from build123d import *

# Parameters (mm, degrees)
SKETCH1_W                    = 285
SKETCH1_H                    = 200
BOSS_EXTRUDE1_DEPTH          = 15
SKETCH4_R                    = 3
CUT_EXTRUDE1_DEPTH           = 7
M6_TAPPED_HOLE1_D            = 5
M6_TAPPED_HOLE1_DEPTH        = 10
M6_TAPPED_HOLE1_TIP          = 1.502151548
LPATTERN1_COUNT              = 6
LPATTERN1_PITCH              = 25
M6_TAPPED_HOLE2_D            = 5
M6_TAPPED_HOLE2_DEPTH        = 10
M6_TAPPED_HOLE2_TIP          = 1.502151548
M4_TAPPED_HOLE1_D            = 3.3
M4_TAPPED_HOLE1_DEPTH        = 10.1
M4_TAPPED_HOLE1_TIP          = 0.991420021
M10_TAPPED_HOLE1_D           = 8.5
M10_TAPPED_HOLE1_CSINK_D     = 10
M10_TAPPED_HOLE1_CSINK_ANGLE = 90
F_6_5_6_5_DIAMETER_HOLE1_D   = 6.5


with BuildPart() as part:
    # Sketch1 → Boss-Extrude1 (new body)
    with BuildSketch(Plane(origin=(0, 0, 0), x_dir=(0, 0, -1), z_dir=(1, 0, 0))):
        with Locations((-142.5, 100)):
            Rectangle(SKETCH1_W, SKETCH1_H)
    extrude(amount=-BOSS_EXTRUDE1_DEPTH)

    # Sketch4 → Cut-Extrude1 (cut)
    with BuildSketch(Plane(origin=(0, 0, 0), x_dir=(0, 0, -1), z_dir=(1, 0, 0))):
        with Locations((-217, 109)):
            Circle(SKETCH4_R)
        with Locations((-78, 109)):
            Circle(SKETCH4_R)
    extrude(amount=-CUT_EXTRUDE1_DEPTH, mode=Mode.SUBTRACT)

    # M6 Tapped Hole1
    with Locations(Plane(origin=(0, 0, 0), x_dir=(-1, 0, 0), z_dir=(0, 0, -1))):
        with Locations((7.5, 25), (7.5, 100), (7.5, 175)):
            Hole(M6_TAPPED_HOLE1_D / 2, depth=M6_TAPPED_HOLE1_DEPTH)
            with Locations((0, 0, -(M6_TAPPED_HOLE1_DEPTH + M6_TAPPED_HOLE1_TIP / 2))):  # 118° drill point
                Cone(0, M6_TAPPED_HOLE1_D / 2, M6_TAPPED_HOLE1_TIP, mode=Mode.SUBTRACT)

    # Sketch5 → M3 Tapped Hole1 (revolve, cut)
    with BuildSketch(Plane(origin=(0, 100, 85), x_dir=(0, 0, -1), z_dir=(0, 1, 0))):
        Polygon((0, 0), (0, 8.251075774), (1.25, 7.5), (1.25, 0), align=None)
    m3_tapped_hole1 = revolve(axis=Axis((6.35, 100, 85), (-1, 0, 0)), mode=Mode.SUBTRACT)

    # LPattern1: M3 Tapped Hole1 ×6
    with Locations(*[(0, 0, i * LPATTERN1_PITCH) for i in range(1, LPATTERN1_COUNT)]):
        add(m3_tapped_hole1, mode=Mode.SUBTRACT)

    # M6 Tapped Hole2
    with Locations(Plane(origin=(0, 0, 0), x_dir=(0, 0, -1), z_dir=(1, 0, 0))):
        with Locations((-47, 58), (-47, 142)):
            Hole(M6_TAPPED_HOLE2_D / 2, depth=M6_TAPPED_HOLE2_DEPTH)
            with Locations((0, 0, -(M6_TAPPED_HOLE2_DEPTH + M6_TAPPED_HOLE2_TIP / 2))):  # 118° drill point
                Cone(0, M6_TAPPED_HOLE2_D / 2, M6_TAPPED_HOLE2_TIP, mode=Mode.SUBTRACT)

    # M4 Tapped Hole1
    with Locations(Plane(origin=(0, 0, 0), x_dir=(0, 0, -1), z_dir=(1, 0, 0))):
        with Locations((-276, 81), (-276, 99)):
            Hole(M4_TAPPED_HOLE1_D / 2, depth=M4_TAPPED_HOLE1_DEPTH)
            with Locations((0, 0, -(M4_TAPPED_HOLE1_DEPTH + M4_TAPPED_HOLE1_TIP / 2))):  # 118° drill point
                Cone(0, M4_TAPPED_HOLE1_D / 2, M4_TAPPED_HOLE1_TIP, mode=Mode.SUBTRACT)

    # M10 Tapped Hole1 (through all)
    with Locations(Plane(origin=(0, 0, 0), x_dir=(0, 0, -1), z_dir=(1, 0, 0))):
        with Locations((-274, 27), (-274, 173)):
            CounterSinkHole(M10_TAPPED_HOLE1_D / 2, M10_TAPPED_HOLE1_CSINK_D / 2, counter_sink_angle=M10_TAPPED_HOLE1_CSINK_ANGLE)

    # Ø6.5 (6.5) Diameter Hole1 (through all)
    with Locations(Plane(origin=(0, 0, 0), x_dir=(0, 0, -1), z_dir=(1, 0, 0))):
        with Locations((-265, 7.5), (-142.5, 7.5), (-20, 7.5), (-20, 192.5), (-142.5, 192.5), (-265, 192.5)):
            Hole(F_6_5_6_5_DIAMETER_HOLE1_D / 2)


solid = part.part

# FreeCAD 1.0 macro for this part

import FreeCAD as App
import Part
import Sketcher
Q = App.Units.Quantity

doc = App.newDocument("Part")
params = doc.addObject("Spreadsheet::Sheet", "Params")
for row, (alias, value) in enumerate([
    ("sketch1_width", "200 mm"),
    ("sketch1_height", "285 mm"),
    ("pad1_length", "15 mm"),
    ("sketch2_diameter", "6 mm"),
    ("pocket1_length", "7 mm"),
    ("sketch3_diameter", "5 mm"),
    ("hole_diameter", "5 mm"),
    ("hole_depth", "10 mm"),
    ("sketch4_width", "7.5 mm"),
    ("sketch4_height", "1.25 mm"),
    ("groove_angle", "360 deg"),
    ("linearpattern_pitch", "25 mm"),
    ("sketch5_diameter", "5 mm"),
    ("hole2_diameter", "5 mm"),
    ("hole2_depth", "10 mm"),
    ("sketch6_diameter", "3.3 mm"),
    ("hole3_diameter", "3.3 mm"),
    ("hole3_depth", "10.1 mm"),
    ("sketch7_diameter", "8.5 mm"),
    ("hole4_diameter", "8.5 mm"),
    ("hole4_csink_diameter", "10 mm"),
    ("sketch8_diameter", "6.5 mm"),
    ("hole5_diameter", "6.5 mm"),
], start=1):
    params.set(f"A{row}", alias)
    params.set(f"B{row}", "=" + value)
    params.setAlias(f"B{row}", alias)

body = doc.addObject("PartDesign::Body", "Body")

# Sketch on YZ plane
sketch1 = doc.addObject("Sketcher::SketchObject", "Sketch")
body.addObject(sketch1)
sketch1.AttachmentSupport = (doc.YZ_Plane, [""])
sketch1.MapMode = "FlatFace"
sketch1.addGeometry(Part.LineSegment(App.Vector(200, 285, 0), App.Vector(0, 285, 0)), False)
sketch1.addGeometry(Part.LineSegment(App.Vector(0, 285, 0), App.Vector(0, 0, 0)), False)
sketch1.addGeometry(Part.LineSegment(App.Vector(0, 0, 0), App.Vector(200, 0, 0)), False)
sketch1.addGeometry(Part.LineSegment(App.Vector(200, 0, 0), App.Vector(200, 285, 0)), False)
sketch1.addConstraint(Sketcher.Constraint("Coincident", 0, 2, 1, 1))
sketch1.addConstraint(Sketcher.Constraint("Coincident", 1, 2, 2, 1))
sketch1.addConstraint(Sketcher.Constraint("Coincident", 2, 2, 3, 1))
sketch1.addConstraint(Sketcher.Constraint("Coincident", 3, 2, 0, 1))
sketch1.addConstraint(Sketcher.Constraint("Horizontal", 0))
sketch1.addConstraint(Sketcher.Constraint("Vertical", 1))
sketch1.addConstraint(Sketcher.Constraint("Horizontal", 2))
sketch1.addConstraint(Sketcher.Constraint("Vertical", 3))
sketch1.addConstraint(Sketcher.Constraint("Coincident", 1, 2, -1, 1))
sketch1.addConstraint(Sketcher.Constraint("DistanceX", 0, 2, 0, 1, 200.0))
sketch1.addConstraint(Sketcher.Constraint("DistanceY", 1, 2, 1, 1, 285.0))
sketch1.setExpression("Constraints[9]", "Params.sketch1_width")
sketch1.setExpression("Constraints[10]", "Params.sketch1_height")
pad1 = doc.addObject("PartDesign::Pad", "Pad")
body.addObject(pad1)
pad1.Profile = sketch1
pad1.setExpression("Length", "Params.pad1_length")
pad1.Reversed = True

# Sketch on YZ plane
sketch2 = doc.addObject("Sketcher::SketchObject", "Sketch001")
body.addObject(sketch2)
sketch2.AttachmentSupport = (doc.YZ_Plane, [""])
sketch2.MapMode = "FlatFace"
sketch2.addGeometry(Part.Circle(App.Vector(109, 217, 0), App.Vector(0, 0, 1), 3), False)
sketch2.addGeometry(Part.Circle(App.Vector(109, 78, 0), App.Vector(0, 0, 1), 3), False)
sketch2.addConstraint(Sketcher.Constraint("Equal", 0, 1))
sketch2.addConstraint(Sketcher.Constraint("Vertical", 0, 3, 1, 3))
sketch2.addConstraint(Sketcher.Constraint("Diameter", 0, 6.0))
sketch2.addConstraint(Sketcher.Constraint("DistanceX", -1, 1, 0, 3, 109.0))
sketch2.addConstraint(Sketcher.Constraint("DistanceY", -1, 1, 0, 3, 217.0))
sketch2.addConstraint(Sketcher.Constraint("DistanceY", -1, 1, 1, 3, 78.0))
sketch2.setExpression("Constraints[2]", "Params.sketch2_diameter")
pocket1 = doc.addObject("PartDesign::Pocket", "Pocket")
body.addObject(pocket1)
pocket1.Profile = sketch2
pocket1.setExpression("Length", "Params.pocket1_length")

# Sketch on XY plane
sketch3 = doc.addObject("Sketcher::SketchObject", "Sketch002")
body.addObject(sketch3)
sketch3.AttachmentSupport = (doc.XY_Plane, [""])
sketch3.MapMode = "FlatFace"
sketch3.addGeometry(Part.Circle(App.Vector(-7.5, 25, 0), App.Vector(0, 0, 1), 2.5), False)
sketch3.addGeometry(Part.Circle(App.Vector(-7.5, 100, 0), App.Vector(0, 0, 1), 2.5), False)
sketch3.addGeometry(Part.Circle(App.Vector(-7.5, 175, 0), App.Vector(0, 0, 1), 2.5), False)
sketch3.addConstraint(Sketcher.Constraint("Equal", 0, 1))
sketch3.addConstraint(Sketcher.Constraint("Equal", 1, 2))
sketch3.addConstraint(Sketcher.Constraint("Vertical", 0, 3, 1, 3))
sketch3.addConstraint(Sketcher.Constraint("Vertical", 1, 3, 2, 3))
sketch3.addConstraint(Sketcher.Constraint("Diameter", 0, 5.0))
sketch3.addConstraint(Sketcher.Constraint("DistanceY", -1, 1, 0, 3, 25.0))
sketch3.addConstraint(Sketcher.Constraint("DistanceY", -1, 1, 1, 3, 100.0))
sketch3.addConstraint(Sketcher.Constraint("DistanceY", -1, 1, 2, 3, 175.0))
sketch3.addConstraint(Sketcher.Constraint("DistanceX", 0, 3, -1, 1, 7.5))
sketch3.setExpression("Constraints[4]", "Params.sketch3_diameter")
doc.recompute()
hole = doc.addObject("PartDesign::Hole", "Hole")
body.addObject(hole)
hole.Profile = sketch3
hole.ThreadType = "None"
hole.setExpression("Diameter", "Params.hole_diameter")
hole.DepthType = "Dimension"
hole.setExpression("Depth", "Params.hole_depth")
hole.DrillPoint = "Angled"
hole.DrillPointAngle = 118
hole.Reversed = True

# Sketch on XZ plane
sketch4 = doc.addObject("Sketcher::SketchObject", "Sketch003")
body.addObject(sketch4)
sketch4.AttachmentSupport = (doc.XZ_Plane, [""])
sketch4.MapMode = "FlatFace"
sketch4.AttachmentOffset = App.Placement(App.Vector(0, 0, -100), App.Rotation())
sketch4.addGeometry(Part.LineSegment(App.Vector(-8.3, 85, 0), App.Vector(0, 85, 0)), False)
sketch4.addGeometry(Part.LineSegment(App.Vector(0, 85, 0), App.Vector(0, 83.8, 0)), False)
sketch4.addGeometry(Part.LineSegment(App.Vector(0, 83.8, 0), App.Vector(-7.5, 83.8, 0)), False)
sketch4.addGeometry(Part.LineSegment(App.Vector(-7.5, 83.8, 0), App.Vector(-8.3, 85, 0)), False)
sketch4.addGeometry(Part.LineSegment(App.Vector(0, 85, 0), App.Vector(-8.3, 85, 0)), True)  # axis
sketch4.addConstraint(Sketcher.Constraint("Coincident", 0, 2, 1, 1))
sketch4.addConstraint(Sketcher.Constraint("Coincident", 1, 2, 2, 1))
sketch4.addConstraint(Sketcher.Constraint("Coincident", 2, 2, 3, 1))
sketch4.addConstraint(Sketcher.Constraint("Coincident", 3, 2, 0, 1))
sketch4.addConstraint(Sketcher.Constraint("Horizontal", 0))
sketch4.addConstraint(Sketcher.Constraint("Vertical", 1))
sketch4.addConstraint(Sketcher.Constraint("Horizontal", 2))
sketch4.addConstraint(Sketcher.Constraint("Horizontal", 4))
sketch4.addConstraint(Sketcher.Constraint("Coincident", 4, 1, 0, 2))
sketch4.addConstraint(Sketcher.Constraint("PointOnObject", 0, 2, -2))
sketch4.addConstraint(Sketcher.Constraint("Equal", 0, 4))
sketch4.addConstraint(Sketcher.Constraint("Angle", 3, Q("121 deg")))
sketch4.addConstraint(Sketcher.Constraint("DistanceX", 2, 2, 2, 1, 7.5))
sketch4.addConstraint(Sketcher.Constraint("DistanceY", -1, 1, 0, 2, 85.0))
sketch4.addConstraint(Sketcher.Constraint("DistanceY", 1, 2, 1, 1, 1.25))
sketch4.setExpression("Constraints[12]", "Params.sketch4_width")
sketch4.setExpression("Constraints[14]", "Params.sketch4_height")
groove = doc.addObject("PartDesign::Groove", "Groove")
body.addObject(groove)
groove.Profile = sketch4
groove.ReferenceAxis = (sketch4, ["Axis0"])
groove.setExpression("Angle", "Params.groove_angle")
doc.recompute()

linearpattern = doc.addObject("PartDesign::LinearPattern", "LinearPattern")
body.addObject(linearpattern)
linearpattern.Originals = [groove]
linearpattern.Direction = (doc.Z_Axis, [""])
linearpattern.Mode = "offset"
linearpattern.setExpression("Offset", "Params.linearpattern_pitch")
linearpattern.Occurrences = 6
body.Tip = linearpattern

# Sketch on YZ plane
sketch5 = doc.addObject("Sketcher::SketchObject", "Sketch004")
body.addObject(sketch5)
sketch5.AttachmentSupport = (doc.YZ_Plane, [""])
sketch5.MapMode = "FlatFace"
sketch5.addGeometry(Part.Circle(App.Vector(58, 47, 0), App.Vector(0, 0, 1), 2.5), False)
sketch5.addGeometry(Part.Circle(App.Vector(142, 47, 0), App.Vector(0, 0, 1), 2.5), False)
sketch5.addConstraint(Sketcher.Constraint("Equal", 0, 1))
sketch5.addConstraint(Sketcher.Constraint("Horizontal", 0, 3, 1, 3))
sketch5.addConstraint(Sketcher.Constraint("Diameter", 0, 5.0))
sketch5.addConstraint(Sketcher.Constraint("DistanceX", -1, 1, 0, 3, 58.0))
sketch5.addConstraint(Sketcher.Constraint("DistanceY", -1, 1, 0, 3, 47.0))
sketch5.addConstraint(Sketcher.Constraint("DistanceX", -1, 1, 1, 3, 142.0))
sketch5.setExpression("Constraints[2]", "Params.sketch5_diameter")
doc.recompute()
hole2 = doc.addObject("PartDesign::Hole", "Hole001")
body.addObject(hole2)
hole2.Profile = sketch5
hole2.ThreadType = "None"
hole2.setExpression("Diameter", "Params.hole2_diameter")
hole2.DepthType = "Dimension"
hole2.setExpression("Depth", "Params.hole2_depth")
hole2.DrillPoint = "Angled"
hole2.DrillPointAngle = 118

# Sketch on YZ plane
sketch6 = doc.addObject("Sketcher::SketchObject", "Sketch005")
body.addObject(sketch6)
sketch6.AttachmentSupport = (doc.YZ_Plane, [""])
sketch6.MapMode = "FlatFace"
sketch6.addGeometry(Part.Circle(App.Vector(81, 276, 0), App.Vector(0, 0, 1), 1.6), False)
sketch6.addGeometry(Part.Circle(App.Vector(99, 276, 0), App.Vector(0, 0, 1), 1.6), False)
sketch6.addConstraint(Sketcher.Constraint("Equal", 0, 1))
sketch6.addConstraint(Sketcher.Constraint("Horizontal", 0, 3, 1, 3))
sketch6.addConstraint(Sketcher.Constraint("Diameter", 0, 3.3))
sketch6.addConstraint(Sketcher.Constraint("DistanceX", -1, 1, 0, 3, 81.0))
sketch6.addConstraint(Sketcher.Constraint("DistanceY", -1, 1, 0, 3, 276.0))
sketch6.addConstraint(Sketcher.Constraint("DistanceX", -1, 1, 1, 3, 99.0))
sketch6.setExpression("Constraints[2]", "Params.sketch6_diameter")
doc.recompute()
hole3 = doc.addObject("PartDesign::Hole", "Hole002")
body.addObject(hole3)
hole3.Profile = sketch6
hole3.ThreadType = "None"
hole3.setExpression("Diameter", "Params.hole3_diameter")
hole3.DepthType = "Dimension"
hole3.setExpression("Depth", "Params.hole3_depth")
hole3.DrillPoint = "Angled"
hole3.DrillPointAngle = 118

# Sketch on YZ plane
sketch7 = doc.addObject("Sketcher::SketchObject", "Sketch006")
body.addObject(sketch7)
sketch7.AttachmentSupport = (doc.YZ_Plane, [""])
sketch7.MapMode = "FlatFace"
sketch7.addGeometry(Part.Circle(App.Vector(27, 274, 0), App.Vector(0, 0, 1), 4.2), False)
sketch7.addGeometry(Part.Circle(App.Vector(173, 274, 0), App.Vector(0, 0, 1), 4.2), False)
sketch7.addConstraint(Sketcher.Constraint("Equal", 0, 1))
sketch7.addConstraint(Sketcher.Constraint("Horizontal", 0, 3, 1, 3))
sketch7.addConstraint(Sketcher.Constraint("Diameter", 0, 8.5))
sketch7.addConstraint(Sketcher.Constraint("DistanceX", -1, 1, 0, 3, 27.0))
sketch7.addConstraint(Sketcher.Constraint("DistanceY", -1, 1, 0, 3, 274.0))
sketch7.addConstraint(Sketcher.Constraint("DistanceX", -1, 1, 1, 3, 173.0))
sketch7.setExpression("Constraints[2]", "Params.sketch7_diameter")
doc.recompute()
hole4 = doc.addObject("PartDesign::Hole", "Hole003")
body.addObject(hole4)
hole4.Profile = sketch7
hole4.ThreadType = "None"
hole4.setExpression("Diameter", "Params.hole4_diameter")
hole4.DepthType = "ThroughAll"
hole4.HoleCutType = "Countersink"
hole4.setExpression("HoleCutDiameter", "Params.hole4_csink_diameter")
hole4.HoleCutCountersinkAngle = 90

# Sketch on YZ plane
sketch8 = doc.addObject("Sketcher::SketchObject", "Sketch007")
body.addObject(sketch8)
sketch8.AttachmentSupport = (doc.YZ_Plane, [""])
sketch8.MapMode = "FlatFace"
sketch8.addGeometry(Part.Circle(App.Vector(7.5, 265, 0), App.Vector(0, 0, 1), 3.2), False)
sketch8.addGeometry(Part.Circle(App.Vector(7.5, 142.5, 0), App.Vector(0, 0, 1), 3.2), False)
sketch8.addGeometry(Part.Circle(App.Vector(7.5, 20, 0), App.Vector(0, 0, 1), 3.2), False)
sketch8.addGeometry(Part.Circle(App.Vector(192.5, 20, 0), App.Vector(0, 0, 1), 3.2), False)
sketch8.addGeometry(Part.Circle(App.Vector(192.5, 142.5, 0), App.Vector(0, 0, 1), 3.2), False)
sketch8.addGeometry(Part.Circle(App.Vector(192.5, 265, 0), App.Vector(0, 0, 1), 3.2), False)
sketch8.addConstraint(Sketcher.Constraint("Equal", 0, 1))
sketch8.addConstraint(Sketcher.Constraint("Equal", 1, 2))
sketch8.addConstraint(Sketcher.Constraint("Equal", 2, 3))
sketch8.addConstraint(Sketcher.Constraint("Equal", 3, 4))
sketch8.addConstraint(Sketcher.Constraint("Equal", 4, 5))
sketch8.addConstraint(Sketcher.Constraint("Horizontal", 2, 3, 3, 3))
sketch8.addConstraint(Sketcher.Constraint("Horizontal", 1, 3, 4, 3))
sketch8.addConstraint(Sketcher.Constraint("Horizontal", 0, 3, 5, 3))
sketch8.addConstraint(Sketcher.Constraint("Vertical", 0, 3, 1, 3))
sketch8.addConstraint(Sketcher.Constraint("Vertical", 1, 3, 2, 3))
sketch8.addConstraint(Sketcher.Constraint("Vertical", 3, 3, 4, 3))
sketch8.addConstraint(Sketcher.Constraint("Vertical", 4, 3, 5, 3))
sketch8.addConstraint(Sketcher.Constraint("Diameter", 0, 6.5))
sketch8.addConstraint(Sketcher.Constraint("DistanceY", -1, 1, 0, 3, 265.0))
sketch8.addConstraint(Sketcher.Constraint("DistanceY", -1, 1, 2, 3, 20.0))
sketch8.addConstraint(Sketcher.Constraint("DistanceX", 2, 3, 3, 3, 185.0))
sketch8.addConstraint(Sketcher.Constraint("DistanceX", -1, 1, 0, 3, 7.5))
sketch8.addConstraint(Sketcher.Constraint("DistanceY", -1, 1, 1, 3, 142.5))
sketch8.setExpression("Constraints[12]", "Params.sketch8_diameter")
doc.recompute()
hole5 = doc.addObject("PartDesign::Hole", "Hole004")
body.addObject(hole5)
hole5.Profile = sketch8
hole5.ThreadType = "None"
hole5.setExpression("Diameter", "Params.hole5_diameter")
hole5.DepthType = "ThroughAll"

doc.recompute()
